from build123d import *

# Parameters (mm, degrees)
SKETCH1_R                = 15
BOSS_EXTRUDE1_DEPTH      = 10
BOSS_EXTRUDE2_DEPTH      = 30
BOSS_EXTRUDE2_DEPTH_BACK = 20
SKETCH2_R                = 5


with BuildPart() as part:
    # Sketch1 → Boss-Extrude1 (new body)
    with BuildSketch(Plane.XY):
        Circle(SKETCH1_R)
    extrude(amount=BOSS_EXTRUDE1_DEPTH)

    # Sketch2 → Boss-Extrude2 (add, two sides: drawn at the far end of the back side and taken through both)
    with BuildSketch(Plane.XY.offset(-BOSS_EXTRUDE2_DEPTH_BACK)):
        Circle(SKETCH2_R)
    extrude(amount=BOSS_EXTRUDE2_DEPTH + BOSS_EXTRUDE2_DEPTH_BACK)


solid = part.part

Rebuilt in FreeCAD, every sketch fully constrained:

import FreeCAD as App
import Part
import Sketcher

V = App.Vector
Q = App.Units.Quantity

doc = App.newDocument("Part")
body = doc.addObject("PartDesign::Body", "Body")

# Sketch on XY plane
sketch1 = body.newObject("Sketcher::SketchObject", "Sketch")
sketch1.AttachmentSupport = (doc.getObject("XY_Plane"), [""])
sketch1.MapMode = "FlatFace"
sketch1.addGeometry(Part.Circle(V(0, 0, 0), V(0, 0, 1), 15), False)
sketch1.addConstraint([
    Sketcher.Constraint("Coincident", 0, 3, -1, 1),
    Sketcher.Constraint("Diameter", 0, Q("30 mm")),
])
pad1 = body.newObject("PartDesign::Pad", "Pad")
pad1.Profile = sketch1
pad1.Length = 10

# Sketch on XY plane
sketch2 = body.newObject("Sketcher::SketchObject", "Sketch001")
sketch2.AttachmentSupport = (doc.getObject("XY_Plane"), [""])
sketch2.MapMode = "FlatFace"
sketch2.addGeometry(Part.Circle(V(0, 0, 0), V(0, 0, 1), 5), False)
sketch2.addConstraint([
    Sketcher.Constraint("Coincident", 0, 3, -1, 1),
    Sketcher.Constraint("Diameter", 0, Q("10 mm")),
])
pad2 = body.newObject("PartDesign::Pad", "Pad001")
pad2.Profile = sketch2
pad2.Type = "TwoLengths"
pad2.Length = 30
pad2.Length2 = 20

doc.recompute()
